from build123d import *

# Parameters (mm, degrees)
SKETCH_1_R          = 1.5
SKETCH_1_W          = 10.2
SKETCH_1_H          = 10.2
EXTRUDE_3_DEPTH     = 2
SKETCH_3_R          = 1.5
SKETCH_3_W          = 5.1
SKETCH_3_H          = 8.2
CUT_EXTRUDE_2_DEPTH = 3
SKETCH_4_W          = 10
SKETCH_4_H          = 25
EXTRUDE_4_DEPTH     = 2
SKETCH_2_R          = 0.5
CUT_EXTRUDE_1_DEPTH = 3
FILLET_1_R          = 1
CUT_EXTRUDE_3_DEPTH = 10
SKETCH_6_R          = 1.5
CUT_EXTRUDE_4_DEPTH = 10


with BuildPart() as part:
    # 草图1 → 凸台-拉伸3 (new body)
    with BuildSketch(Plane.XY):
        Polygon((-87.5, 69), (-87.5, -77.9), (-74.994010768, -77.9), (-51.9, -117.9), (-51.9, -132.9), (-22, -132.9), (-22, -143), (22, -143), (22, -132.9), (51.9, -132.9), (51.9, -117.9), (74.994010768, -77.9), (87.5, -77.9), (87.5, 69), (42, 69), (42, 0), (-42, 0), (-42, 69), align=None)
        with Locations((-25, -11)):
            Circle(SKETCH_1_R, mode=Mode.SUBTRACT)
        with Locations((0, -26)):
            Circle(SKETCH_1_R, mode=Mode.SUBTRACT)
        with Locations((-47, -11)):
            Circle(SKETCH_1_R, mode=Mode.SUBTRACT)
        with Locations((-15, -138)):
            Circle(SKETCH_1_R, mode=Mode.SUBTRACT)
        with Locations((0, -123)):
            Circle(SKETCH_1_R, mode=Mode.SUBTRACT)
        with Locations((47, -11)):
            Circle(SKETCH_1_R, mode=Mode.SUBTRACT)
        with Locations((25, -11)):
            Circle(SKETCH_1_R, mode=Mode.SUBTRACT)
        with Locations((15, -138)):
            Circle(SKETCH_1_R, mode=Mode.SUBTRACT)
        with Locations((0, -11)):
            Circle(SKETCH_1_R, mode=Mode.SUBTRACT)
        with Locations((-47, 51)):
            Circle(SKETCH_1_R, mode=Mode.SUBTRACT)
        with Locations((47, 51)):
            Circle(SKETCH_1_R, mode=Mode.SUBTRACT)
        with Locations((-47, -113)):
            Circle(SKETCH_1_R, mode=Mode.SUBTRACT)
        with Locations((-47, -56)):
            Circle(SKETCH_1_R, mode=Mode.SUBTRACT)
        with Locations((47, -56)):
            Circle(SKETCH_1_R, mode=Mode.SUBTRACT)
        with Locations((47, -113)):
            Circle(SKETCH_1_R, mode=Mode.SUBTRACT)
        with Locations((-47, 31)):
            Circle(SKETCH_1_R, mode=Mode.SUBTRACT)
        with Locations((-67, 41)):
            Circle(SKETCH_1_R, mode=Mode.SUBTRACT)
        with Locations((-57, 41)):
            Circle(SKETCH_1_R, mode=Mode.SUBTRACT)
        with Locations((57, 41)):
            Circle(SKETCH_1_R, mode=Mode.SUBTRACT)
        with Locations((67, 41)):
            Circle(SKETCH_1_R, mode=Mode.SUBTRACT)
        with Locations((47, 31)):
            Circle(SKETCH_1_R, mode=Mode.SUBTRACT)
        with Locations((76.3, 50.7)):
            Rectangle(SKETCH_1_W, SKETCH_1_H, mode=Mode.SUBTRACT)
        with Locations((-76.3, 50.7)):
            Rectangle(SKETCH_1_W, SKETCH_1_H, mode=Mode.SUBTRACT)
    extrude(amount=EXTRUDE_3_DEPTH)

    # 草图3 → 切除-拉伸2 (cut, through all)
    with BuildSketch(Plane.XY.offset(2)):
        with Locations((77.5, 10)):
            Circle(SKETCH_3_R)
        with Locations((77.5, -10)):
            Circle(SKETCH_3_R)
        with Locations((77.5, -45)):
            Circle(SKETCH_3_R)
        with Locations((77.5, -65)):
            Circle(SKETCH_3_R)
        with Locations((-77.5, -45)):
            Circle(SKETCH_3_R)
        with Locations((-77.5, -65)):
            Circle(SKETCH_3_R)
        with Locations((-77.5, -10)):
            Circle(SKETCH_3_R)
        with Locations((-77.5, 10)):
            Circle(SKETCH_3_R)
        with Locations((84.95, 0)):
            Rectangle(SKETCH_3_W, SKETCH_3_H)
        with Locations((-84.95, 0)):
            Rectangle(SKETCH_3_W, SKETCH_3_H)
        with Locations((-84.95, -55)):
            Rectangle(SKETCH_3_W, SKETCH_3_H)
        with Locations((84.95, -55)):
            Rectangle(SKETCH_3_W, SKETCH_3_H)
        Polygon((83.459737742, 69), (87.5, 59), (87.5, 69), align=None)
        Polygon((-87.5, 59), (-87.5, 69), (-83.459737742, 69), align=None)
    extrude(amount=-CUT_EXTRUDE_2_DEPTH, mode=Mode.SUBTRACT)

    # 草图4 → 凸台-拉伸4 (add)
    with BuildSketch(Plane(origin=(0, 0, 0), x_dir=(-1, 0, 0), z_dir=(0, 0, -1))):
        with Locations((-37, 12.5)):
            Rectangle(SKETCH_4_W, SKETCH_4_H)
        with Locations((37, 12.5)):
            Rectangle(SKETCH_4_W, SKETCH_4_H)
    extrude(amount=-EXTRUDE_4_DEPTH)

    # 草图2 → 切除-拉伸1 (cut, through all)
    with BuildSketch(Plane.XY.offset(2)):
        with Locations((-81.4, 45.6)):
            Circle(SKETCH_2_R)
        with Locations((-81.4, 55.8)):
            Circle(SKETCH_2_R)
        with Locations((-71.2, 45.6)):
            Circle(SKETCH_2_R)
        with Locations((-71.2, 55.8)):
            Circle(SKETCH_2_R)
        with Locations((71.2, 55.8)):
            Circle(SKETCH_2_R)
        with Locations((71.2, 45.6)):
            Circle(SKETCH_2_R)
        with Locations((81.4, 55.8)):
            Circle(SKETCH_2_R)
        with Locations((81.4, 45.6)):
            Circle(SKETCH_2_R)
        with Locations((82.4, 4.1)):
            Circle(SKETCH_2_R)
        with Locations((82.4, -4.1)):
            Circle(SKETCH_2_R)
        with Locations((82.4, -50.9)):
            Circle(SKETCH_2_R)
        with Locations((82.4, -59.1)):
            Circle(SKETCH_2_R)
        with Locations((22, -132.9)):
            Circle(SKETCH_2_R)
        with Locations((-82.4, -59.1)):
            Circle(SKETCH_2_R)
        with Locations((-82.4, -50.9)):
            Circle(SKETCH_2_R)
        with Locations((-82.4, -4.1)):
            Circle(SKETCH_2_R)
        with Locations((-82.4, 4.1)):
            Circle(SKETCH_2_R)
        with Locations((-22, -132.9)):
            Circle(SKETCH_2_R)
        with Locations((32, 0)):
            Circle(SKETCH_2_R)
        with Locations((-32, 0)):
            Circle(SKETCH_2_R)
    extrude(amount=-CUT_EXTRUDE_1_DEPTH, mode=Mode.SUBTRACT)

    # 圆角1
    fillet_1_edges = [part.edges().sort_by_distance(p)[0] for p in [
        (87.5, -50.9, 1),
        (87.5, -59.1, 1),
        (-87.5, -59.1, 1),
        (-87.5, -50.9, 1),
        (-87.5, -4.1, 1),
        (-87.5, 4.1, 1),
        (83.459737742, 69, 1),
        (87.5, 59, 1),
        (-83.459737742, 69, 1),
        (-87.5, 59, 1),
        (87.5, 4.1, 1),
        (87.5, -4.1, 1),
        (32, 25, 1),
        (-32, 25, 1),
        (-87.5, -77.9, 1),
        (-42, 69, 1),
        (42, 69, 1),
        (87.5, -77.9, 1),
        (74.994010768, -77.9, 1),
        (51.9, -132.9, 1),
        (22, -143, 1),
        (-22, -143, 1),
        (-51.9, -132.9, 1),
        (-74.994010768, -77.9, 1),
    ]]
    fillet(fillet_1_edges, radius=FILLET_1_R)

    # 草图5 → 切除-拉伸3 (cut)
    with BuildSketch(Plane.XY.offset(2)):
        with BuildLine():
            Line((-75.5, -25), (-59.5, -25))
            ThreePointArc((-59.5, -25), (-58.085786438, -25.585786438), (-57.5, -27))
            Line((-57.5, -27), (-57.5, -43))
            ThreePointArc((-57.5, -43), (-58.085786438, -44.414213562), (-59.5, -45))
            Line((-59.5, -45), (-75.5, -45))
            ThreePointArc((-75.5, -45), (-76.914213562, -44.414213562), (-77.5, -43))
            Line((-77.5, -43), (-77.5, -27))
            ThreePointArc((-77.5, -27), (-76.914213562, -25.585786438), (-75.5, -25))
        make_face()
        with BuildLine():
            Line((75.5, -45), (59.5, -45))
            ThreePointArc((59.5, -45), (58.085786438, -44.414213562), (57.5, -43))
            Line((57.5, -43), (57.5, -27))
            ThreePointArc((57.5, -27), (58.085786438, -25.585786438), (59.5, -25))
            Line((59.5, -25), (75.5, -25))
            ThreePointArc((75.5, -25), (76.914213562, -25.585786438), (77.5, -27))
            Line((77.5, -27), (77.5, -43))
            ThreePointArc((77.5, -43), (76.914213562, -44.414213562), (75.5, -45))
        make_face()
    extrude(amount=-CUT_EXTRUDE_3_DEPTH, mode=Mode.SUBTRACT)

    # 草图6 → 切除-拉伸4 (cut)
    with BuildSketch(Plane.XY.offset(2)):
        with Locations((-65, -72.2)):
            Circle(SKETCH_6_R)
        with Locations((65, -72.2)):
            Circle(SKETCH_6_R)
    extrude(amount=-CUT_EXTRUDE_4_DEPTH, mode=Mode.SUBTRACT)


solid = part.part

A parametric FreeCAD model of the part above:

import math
import FreeCAD as App
import Part
import Sketcher
from FreeCAD import Vector
Q = App.Units.Quantity


def edges_at(feature, points):
    """Names of the edges that pass closest to the given points."""
    edges = feature.Shape.Edges
    near = lambda p: min(range(len(edges)), key=lambda i: edges[i].distToShape(Part.Vertex(*p))[0])
    return sorted({f"Edge{near(p) + 1}" for p in points})

doc = App.newDocument("Part")
body = doc.addObject("PartDesign::Body", "Body")

# Sketch on XY plane
sketch1 = body.newObject("Sketcher::SketchObject", "Sketch")
sketch1.AttachmentSupport = (doc.getObject("XY_Plane"), [""])
sketch1.MapMode = "FlatFace"
sketch1.addGeometry(Part.LineSegment(Vector(-87.5, 69, 0), Vector(-87.5, -77.9, 0)), False)
sketch1.addGeometry(Part.LineSegment(Vector(-87.5, -77.9, 0), Vector(-75, -77.9, 0)), False)
sketch1.addGeometry(Part.LineSegment(Vector(-75, -77.9, 0), Vector(-51.9, -117.9, 0)), False)
sketch1.addGeometry(Part.LineSegment(Vector(-51.9, -117.9, 0), Vector(-51.9, -132.9, 0)), False)
sketch1.addGeometry(Part.LineSegment(Vector(-51.9, -132.9, 0), Vector(-22, -132.9, 0)), False)
sketch1.addGeometry(Part.LineSegment(Vector(-22, -132.9, 0), Vector(-22, -143, 0)), False)
sketch1.addGeometry(Part.LineSegment(Vector(-22, -143, 0), Vector(22, -143, 0)), False)
sketch1.addGeometry(Part.LineSegment(Vector(22, -143, 0), Vector(22, -132.9, 0)), False)
sketch1.addGeometry(Part.LineSegment(Vector(22, -132.9, 0), Vector(51.9, -132.9, 0)), False)
sketch1.addGeometry(Part.LineSegment(Vector(51.9, -132.9, 0), Vector(51.9, -117.9, 0)), False)
sketch1.addGeometry(Part.LineSegment(Vector(51.9, -117.9, 0), Vector(75, -77.9, 0)), False)
sketch1.addGeometry(Part.LineSegment(Vector(75, -77.9, 0), Vector(87.5, -77.9, 0)), False)
sketch1.addGeometry(Part.LineSegment(Vector(87.5, -77.9, 0), Vector(87.5, 69, 0)), False)
sketch1.addGeometry(Part.LineSegment(Vector(87.5, 69, 0), Vector(42, 69, 0)), False)
sketch1.addGeometry(Part.LineSegment(Vector(42, 69, 0), Vector(42, 0, 0)), False)
sketch1.addGeometry(Part.LineSegment(Vector(42, 0, 0), Vector(-42, 0, 0)), False)
sketch1.addGeometry(Part.LineSegment(Vector(-42, 0, 0), Vector(-42, 69, 0)), False)
sketch1.addGeometry(Part.LineSegment(Vector(-42, 69, 0), Vector(-87.5, 69, 0)), False)
sketch1.addGeometry(Part.Circle(Vector(-47, -113, 0), Vector(0, 0, 1), 1.5), False)
sketch1.addGeometry(Part.Circle(Vector(-15, -138, 0), Vector(0, 0, 1), 1.5), False)
sketch1.addGeometry(Part.Circle(Vector(-47, -56, 0), Vector(0, 0, 1), 1.5), False)
sketch1.addGeometry(Part.Circle(Vector(15, -138, 0), Vector(0, 0, 1), 1.5), False)
sketch1.addGeometry(Part.Circle(Vector(0, -123, 0), Vector(0, 0, 1), 1.5), False)
sketch1.addGeometry(Part.Circle(Vector(47, -113, 0), Vector(0, 0, 1), 1.5), False)
sketch1.addGeometry(Part.Circle(Vector(47, -56, 0), Vector(0, 0, 1), 1.5), False)
sketch1.addGeometry(Part.Circle(Vector(-47, -11, 0), Vector(0, 0, 1), 1.5), False)
sketch1.addGeometry(Part.Circle(Vector(-25, -11, 0), Vector(0, 0, 1), 1.5), False)
sketch1.addGeometry(Part.Circle(Vector(-47, 31, 0), Vector(0, 0, 1), 1.5), False)
sketch1.addGeometry(Part.Circle(Vector(-67, 41, 0), Vector(0, 0, 1), 1.5), False)
sketch1.addGeometry(Part.LineSegment(Vector(-71.2, 45.6, 0), Vector(-81.4, 45.6, 0)), False)
sketch1.addGeometry(Part.LineSegment(Vector(-81.4, 45.6, 0), Vector(-81.4, 55.8, 0)), False)
sketch1.addGeometry(Part.LineSegment(Vector(-81.4, 55.8, 0), Vector(-71.2, 55.8, 0)), False)
sketch1.addGeometry(Part.LineSegment(Vector(-71.2, 55.8, 0), Vector(-71.2, 45.6, 0)), False)
sketch1.addGeometry(Part.Circle(Vector(-57, 41, 0), Vector(0, 0, 1), 1.5), False)
sketch1.addGeometry(Part.Circle(Vector(-47, 51, 0), Vector(0, 0, 1), 1.5), False)
sketch1.addGeometry(Part.Circle(Vector(0, -26, 0), Vector(0, 0, 1), 1.5), False)
sketch1.addGeometry(Part.Circle(Vector(0, -11, 0), Vector(0, 0, 1), 1.5), False)
sketch1.addGeometry(Part.Circle(Vector(25, -11, 0), Vector(0, 0, 1), 1.5), False)
sketch1.addGeometry(Part.Circle(Vector(47, -11, 0), Vector(0, 0, 1), 1.5), False)
sketch1.addGeometry(Part.Circle(Vector(47, 31, 0), Vector(0, 0, 1), 1.5), False)
sketch1.addGeometry(Part.Circle(Vector(57, 41, 0), Vector(0, 0, 1), 1.5), False)
sketch1.addGeometry(Part.Circle(Vector(47, 51, 0), Vector(0, 0, 1), 1.5), False)
sketch1.addGeometry(Part.Circle(Vector(67, 41, 0), Vector(0, 0, 1), 1.5), False)
sketch1.addGeometry(Part.LineSegment(Vector(81.4, 45.6, 0), Vector(71.2, 45.6, 0)), False)
sketch1.addGeometry(Part.LineSegment(Vector(71.2, 45.6, 0), Vector(71.2, 55.8, 0)), False)
sketch1.addGeometry(Part.LineSegment(Vector(71.2, 55.8, 0), Vector(81.4, 55.8, 0)), False)
sketch1.addGeometry(Part.LineSegment(Vector(81.4, 55.8, 0), Vector(81.4, 45.6, 0)), False)
sketch1.addConstraint(Sketcher.Constraint("Coincident", 0, 2, 1, 1))
sketch1.addConstraint(Sketcher.Constraint("Coincident", 1, 2, 2, 1))
sketch1.addConstraint(Sketcher.Constraint("Coincident", 2, 2, 3, 1))
sketch1.addConstraint(Sketcher.Constraint("Coincident", 3, 2, 4, 1))
sketch1.addConstraint(Sketcher.Constraint("Coincident", 4, 2, 5, 1))
sketch1.addConstraint(Sketcher.Constraint("Coincident", 5, 2, 6, 1))
sketch1.addConstraint(Sketcher.Constraint("Coincident", 6, 2, 7, 1))
sketch1.addConstraint(Sketcher.Constraint("Coincident", 7, 2, 8, 1))
sketch1.addConstraint(Sketcher.Constraint("Coincident", 8, 2, 9, 1))
sketch1.addConstraint(Sketcher.Constraint("Coincident", 9, 2, 10, 1))
sketch1.addConstraint(Sketcher.Constraint("Coincident", 10, 2, 11, 1))
sketch1.addConstraint(Sketcher.Constraint("Coincident", 11, 2, 12, 1))
sketch1.addConstraint(Sketcher.Constraint("Coincident", 12, 2, 13, 1))
sketch1.addConstraint(Sketcher.Constraint("Coincident", 13, 2, 14, 1))
sketch1.addConstraint(Sketcher.Constraint("Coincident", 14, 2, 15, 1))
sketch1.addConstraint(Sketcher.Constraint("Coincident", 15, 2, 16, 1))
sketch1.addConstraint(Sketcher.Constraint("Coincident", 16, 2, 17, 1))
sketch1.addConstraint(Sketcher.Constraint("Coincident", 17, 2, 0, 1))
sketch1.addConstraint(Sketcher.Constraint("Coincident", 29, 2, 30, 1))
sketch1.addConstraint(Sketcher.Constraint("Coincident", 30, 2, 31, 1))
sketch1.addConstraint(Sketcher.Constraint("Coincident", 31, 2, 32, 1))
sketch1.addConstraint(Sketcher.Constraint("Coincident", 32, 2, 29, 1))
sketch1.addConstraint(Sketcher.Constraint("Coincident", 43, 2, 44, 1))
sketch1.addConstraint(Sketcher.Constraint("Coincident", 44, 2, 45, 1))
sketch1.addConstraint(Sketcher.Constraint("Coincident", 45, 2, 46, 1))
sketch1.addConstraint(Sketcher.Constraint("Coincident", 46, 2, 43, 1))
sketch1.addConstraint(Sketcher.Constraint("Vertical", 0))
sketch1.addConstraint(Sketcher.Constraint("Horizontal", 1))
sketch1.addConstraint(Sketcher.Constraint("Vertical", 3))
sketch1.addConstraint(Sketcher.Constraint("Horizontal", 4))
sketch1.addConstraint(Sketcher.Constraint("Vertical", 5))
sketch1.addConstraint(Sketcher.Constraint("Horizontal", 6))
sketch1.addConstraint(Sketcher.Constraint("Vertical", 7))
sketch1.addConstraint(Sketcher.Constraint("Horizontal", 8))
sketch1.addConstraint(Sketcher.Constraint("Vertical", 9))
sketch1.addConstraint(Sketcher.Constraint("Horizontal", 11))
sketch1.addConstraint(Sketcher.Constraint("Vertical", 12))
sketch1.addConstraint(Sketcher.Constraint("Horizontal", 13))
sketch1.addConstraint(Sketcher.Constraint("Vertical", 14))
sketch1.addConstraint(Sketcher.Constraint("Horizontal", 15))
sketch1.addConstraint(Sketcher.Constraint("Vertical", 16))
sketch1.addConstraint(Sketcher.Constraint("Horizontal", 17))
sketch1.addConstraint(Sketcher.Constraint("Horizontal", 29))
sketch1.addConstraint(Sketcher.Constraint("Vertical", 30))
sketch1.addConstraint(Sketcher.Constraint("Horizontal", 31))
sketch1.addConstraint(Sketcher.Constraint("Vertical", 32))
sketch1.addConstraint(Sketcher.Constraint("Horizontal", 43))
sketch1.addConstraint(Sketcher.Constraint("Vertical", 44))
sketch1.addConstraint(Sketcher.Constraint("Horizontal", 45))
sketch1.addConstraint(Sketcher.Constraint("Vertical", 46))
sketch1.addConstraint(Sketcher.Constraint("Equal", 18, 19))
sketch1.addConstraint(Sketcher.Constraint("Equal", 19, 20))
sketch1.addConstraint(Sketcher.Constraint("Equal", 20, 21))
sketch1.addConstraint(Sketcher.Constraint("Equal", 21, 22))
sketch1.addConstraint(Sketcher.Constraint("Equal", 22, 23))
sketch1.addConstraint(Sketcher.Constraint("Equal", 23, 24))
sketch1.addConstraint(Sketcher.Constraint("Equal", 24, 25))
sketch1.addConstraint(Sketcher.Constraint("Equal", 25, 26))
sketch1.addConstraint(Sketcher.Constraint("Equal", 26, 27))
sketch1.addConstraint(Sketcher.Constraint("Equal", 27, 28))
sketch1.addConstraint(Sketcher.Constraint("Equal", 28, 33))
sketch1.addConstraint(Sketcher.Constraint("Equal", 33, 34))
sketch1.addConstraint(Sketcher.Constraint("Equal", 34, 35))
sketch1.addConstraint(Sketcher.Constraint("Equal", 35, 36))
sketch1.addConstraint(Sketcher.Constraint("Equal", 36, 37))
sketch1.addConstraint(Sketcher.Constraint("Equal", 37, 38))
sketch1.addConstraint(Sketcher.Constraint("Equal", 38, 39))
sketch1.addConstraint(Sketcher.Constraint("Equal", 39, 40))
sketch1.addConstraint(Sketcher.Constraint("Equal", 40, 41))
sketch1.addConstraint(Sketcher.Constraint("Equal", 41, 42))
sketch1.addConstraint(Sketcher.Constraint("Symmetric", 14, 2, 15, 2, -1, 1))
sketch1.addConstraint(Sketcher.Constraint("Symmetric", 19, 3, 21, 3, -2))
sketch1.addConstraint(Sketcher.Constraint("Symmetric", 18, 3, 23, 3, -2))
sketch1.addConstraint(Sketcher.Constraint("Symmetric", 20, 3, 24, 3, -2))
sketch1.addConstraint(Sketcher.Constraint("Symmetric", 26, 3, 37, 3, -2))
sketch1.addConstraint(Sketcher.Constraint("Symmetric", 25, 3, 38, 3, -2))
sketch1.addConstraint(Sketcher.Constraint("Symmetric", 27, 3, 39, 3, -2))
sketch1.addConstraint(Sketcher.Constraint("Symmetric", 33, 3, 40, 3, -2))
sketch1.addConstraint(Sketcher.Constraint("Symmetric", 34, 3, 41, 3, -2))
sketch1.addConstraint(Sketcher.Constraint("Symmetric", 28, 3, 42, 3, -2))
sketch1.addConstraint(Sketcher.Constraint("Symmetric", 4, 2, 7, 2, -2))
sketch1.addConstraint(Sketcher.Constraint("Symmetric", 2, 2, 9, 2, -2))
sketch1.addConstraint(Sketcher.Constraint("Symmetric", 1, 2, 10, 2, -2))
sketch1.addConstraint(Sketcher.Constraint("Symmetric", 12, 2, 17, 2, -2))
sketch1.addConstraint(Sketcher.Constraint("Symmetric", 32, 2, 43, 2, -2))
sketch1.addConstraint(Sketcher.Constraint("Symmetric", 30, 2, 45, 2, -2))
sketch1.addConstraint(Sketcher.Constraint("PointOnObject", 22, 3, -2))
sketch1.addConstraint(Sketcher.Constraint("PointOnObject", 35, 3, -2))
sketch1.addConstraint(Sketcher.Constraint("PointOnObject", 36, 3, -2))
sketch1.addConstraint(Sketcher.Constraint("Horizontal", 25, 3, 26, 3))
sketch1.addConstraint(Sketcher.Constraint("Horizontal", 28, 3, 33, 3))
sketch1.addConstraint(Sketcher.Constraint("Horizontal", 26, 3, 36, 3))
sketch1.addConstraint(Sketcher.Constraint("Vertical", 18, 3, 20, 3))
sketch1.addConstraint(Sketcher.Constraint("Vertical", 20, 3, 25, 3))
sketch1.addConstraint(Sketcher.Constraint("Vertical", 25, 3, 27, 3))
sketch1.addConstraint(Sketcher.Constraint("Vertical", 27, 3, 34, 3))
sketch1.addConstraint(Sketcher.Constraint("Equal", 45, 30))
sketch1.addConstraint(Sketcher.Constraint("Diameter", 18, Q("3 mm")))
sketch1.addConstraint(Sketcher.Constraint("DistanceX", 6, 1, 6, 2, Q("44 mm")))
sketch1.addConstraint(Sketcher.Constraint("DistanceX", 15, 2, 15, 1, Q("84 mm")))
sketch1.addConstraint(Sketcher.Constraint("DistanceY", 3, 2, 3, 1, Q("15 mm")))
sketch1.addConstraint(Sketcher.Constraint("DistanceY", 14, 2, 14, 1, Q("69 mm")))
sketch1.addConstraint(Sketcher.Constraint("Angle", 2, Q("-60 deg")))
sketch1.addConstraint(Sketcher.Constraint("DistanceX", 4, 1, 4, 2, Q("29.9 mm")))
sketch1.addConstraint(Sketcher.Constraint("DistanceX", 13, 2, 13, 1, Q("45.5 mm")))
sketch1.addConstraint(Sketcher.Constraint("DistanceX", 29, 2, 29, 1, Q("10.2 mm")))
sketch1.addConstraint(Sketcher.Constraint("DistanceY", 0, 2, 0, 1, Q("146.9 mm")))
sketch1.addConstraint(Sketcher.Constraint("DistanceY", 5, 2, 5, 1, Q("10.1 mm")))
sketch1.addConstraint(Sketcher.Constraint("DistanceX", 18, 3, -1, 1, Q("47 mm")))
sketch1.addConstraint(Sketcher.Constraint("DistanceY", 18, 3, -1, 1, Q("113 mm")))
sketch1.addConstraint(Sketcher.Constraint("DistanceX", 19, 3, -1, 1, Q("15 mm")))
sketch1.addConstraint(Sketcher.Constraint("DistanceY", 19, 3, -1, 1, Q("138 mm")))
sketch1.addConstraint(Sketcher.Constraint("DistanceY", 20, 3, -1, 1, Q("56 mm")))
sketch1.addConstraint(Sketcher.Constraint("DistanceY", 22, 3, -1, 1, Q("123 mm")))
sketch1.addConstraint(Sketcher.Constraint("DistanceY", 25, 3, -1, 1, Q("11 mm")))
sketch1.addConstraint(Sketcher.Constraint("DistanceX", 26, 3, -1, 1, Q("25 mm")))
sketch1.addConstraint(Sketcher.Constraint("DistanceY", -1, 1, 27, 3, Q("31 mm")))
sketch1.addConstraint(Sketcher.Constraint("DistanceX", 28, 3, -1, 1, Q("67 mm")))
sketch1.addConstraint(Sketcher.Constraint("DistanceY", -1, 1, 28, 3, Q("41 mm")))
sketch1.addConstraint(Sketcher.Constraint("DistanceX", 33, 3, -1, 1, Q("57 mm")))
sketch1.addConstraint(Sketcher.Constraint("DistanceY", -1, 1, 34, 3, Q("51 mm")))
sketch1.addConstraint(Sketcher.Constraint("DistanceY", 35, 3, -1, 1, Q("26 mm")))
sketch1.addConstraint(Sketcher.Constraint("DistanceY", 5, 2, -1, 1, Q("143 mm")))
sketch1.addConstraint(Sketcher.Constraint("DistanceX", 29, 2, -1, 1, Q("81.4 mm")))
sketch1.addConstraint(Sketcher.Constraint("DistanceY", -1, 1, 29, 2, Q("45.6 mm")))
pad1 = body.newObject("PartDesign::Pad", "Pad")
pad1.Profile = sketch1
pad1.Length = 2

# Sketch on XY plane
sketch2 = body.newObject("Sketcher::SketchObject", "Sketch001")
sketch2.AttachmentSupport = (doc.getObject("XY_Plane"), [""])
sketch2.MapMode = "FlatFace"
sketch2.AttachmentOffset = App.Placement(Vector(0, 0, 2), App.Rotation())
sketch2.addGeometry(Part.Circle(Vector(77.5, 10, 0), Vector(0, 0, 1), 1.5), False)
sketch2.addGeometry(Part.Circle(Vector(77.5, -10, 0), Vector(0, 0, 1), 1.5), False)
sketch2.addGeometry(Part.Circle(Vector(77.5, -45, 0), Vector(0, 0, 1), 1.5), False)
sketch2.addGeometry(Part.Circle(Vector(77.5, -65, 0), Vector(0, 0, 1), 1.5), False)
sketch2.addGeometry(Part.Circle(Vector(-77.5, -45, 0), Vector(0, 0, 1), 1.5), False)
sketch2.addGeometry(Part.Circle(Vector(-77.5, -65, 0), Vector(0, 0, 1), 1.5), False)
sketch2.addGeometry(Part.Circle(Vector(-77.5, -10, 0), Vector(0, 0, 1), 1.5), False)
sketch2.addGeometry(Part.Circle(Vector(-77.5, 10, 0), Vector(0, 0, 1), 1.5), False)
sketch2.addGeometry(Part.LineSegment(Vector(82.4, 4.1, 0), Vector(82.4, -4.1, 0)), False)
sketch2.addGeometry(Part.LineSegment(Vector(82.4, -4.1, 0), Vector(87.5, -4.1, 0)), False)
sketch2.addGeometry(Part.LineSegment(Vector(87.5, -4.1, 0), Vector(87.5, 4.1, 0)), False)
sketch2.addGeometry(Part.LineSegment(Vector(87.5, 4.1, 0), Vector(82.4, 4.1, 0)), False)
sketch2.addGeometry(Part.LineSegment(Vector(-87.5, 4.1, 0), Vector(-87.5, -4.1, 0)), False)
sketch2.addGeometry(Part.LineSegment(Vector(-87.5, -4.1, 0), Vector(-82.4, -4.1, 0)), False)
sketch2.addGeometry(Part.LineSegment(Vector(-82.4, -4.1, 0), Vector(-82.4, 4.1, 0)), False)
sketch2.addGeometry(Part.LineSegment(Vector(-82.4, 4.1, 0), Vector(-87.5, 4.1, 0)), False)
sketch2.addGeometry(Part.LineSegment(Vector(-87.5, -50.9, 0), Vector(-87.5, -59.1, 0)), False)
sketch2.addGeometry(Part.LineSegment(Vector(-87.5, -59.1, 0), Vector(-82.4, -59.1, 0)), False)
sketch2.addGeometry(Part.LineSegment(Vector(-82.4, -59.1, 0), Vector(-82.4, -50.9, 0)), False)
sketch2.addGeometry(Part.LineSegment(Vector(-82.4, -50.9, 0), Vector(-87.5, -50.9, 0)), False)
sketch2.addGeometry(Part.LineSegment(Vector(82.4, -50.9, 0), Vector(82.4, -59.1, 0)), False)
sketch2.addGeometry(Part.LineSegment(Vector(82.4, -59.1, 0), Vector(87.5, -59.1, 0)), False)
sketch2.addGeometry(Part.LineSegment(Vector(87.5, -59.1, 0), Vector(87.5, -50.9, 0)), False)
sketch2.addGeometry(Part.LineSegment(Vector(87.5, -50.9, 0), Vector(82.4, -50.9, 0)), False)
sketch2.addGeometry(Part.LineSegment(Vector(83.5, 69, 0), Vector(87.5, 59, 0)), False)
sketch2.addGeometry(Part.LineSegment(Vector(87.5, 59, 0), Vector(87.5, 69, 0)), False)
sketch2.addGeometry(Part.LineSegment(Vector(87.5, 69, 0), Vector(83.5, 69, 0)), False)
sketch2.addGeometry(Part.LineSegment(Vector(-87.5, 69, 0), Vector(-87.5, 59, 0)), False)
sketch2.addGeometry(Part.LineSegment(Vector(-87.5, 59, 0), Vector(-83.5, 69, 0)), False)
sketch2.addGeometry(Part.LineSegment(Vector(-83.5, 69, 0), Vector(-87.5, 69, 0)), False)
sketch2.addConstraint(Sketcher.Constraint("Coincident", 8, 2, 9, 1))
sketch2.addConstraint(Sketcher.Constraint("Coincident", 9, 2, 10, 1))
sketch2.addConstraint(Sketcher.Constraint("Coincident", 10, 2, 11, 1))
sketch2.addConstraint(Sketcher.Constraint("Coincident", 11, 2, 8, 1))
sketch2.addConstraint(Sketcher.Constraint("Coincident", 12, 2, 13, 1))
sketch2.addConstraint(Sketcher.Constraint("Coincident", 13, 2, 14, 1))
sketch2.addConstraint(Sketcher.Constraint("Coincident", 14, 2, 15, 1))
sketch2.addConstraint(Sketcher.Constraint("Coincident", 15, 2, 12, 1))
sketch2.addConstraint(Sketcher.Constraint("Coincident", 16, 2, 17, 1))
sketch2.addConstraint(Sketcher.Constraint("Coincident", 17, 2, 18, 1))
sketch2.addConstraint(Sketcher.Constraint("Coincident", 18, 2, 19, 1))
sketch2.addConstraint(Sketcher.Constraint("Coincident", 19, 2, 16, 1))
sketch2.addConstraint(Sketcher.Constraint("Coincident", 20, 2, 21, 1))
sketch2.addConstraint(Sketcher.Constraint("Coincident", 21, 2, 22, 1))
sketch2.addConstraint(Sketcher.Constraint("Coincident", 22, 2, 23, 1))
sketch2.addConstraint(Sketcher.Constraint("Coincident", 23, 2, 20, 1))
sketch2.addConstraint(Sketcher.Constraint("Coincident", 24, 2, 25, 1))
sketch2.addConstraint(Sketcher.Constraint("Coincident", 25, 2, 26, 1))
sketch2.addConstraint(Sketcher.Constraint("Coincident", 26, 2, 24, 1))
sketch2.addConstraint(Sketcher.Constraint("Coincident", 27, 2, 28, 1))
sketch2.addConstraint(Sketcher.Constraint("Coincident", 28, 2, 29, 1))
sketch2.addConstraint(Sketcher.Constraint("Coincident", 29, 2, 27, 1))
sketch2.addConstraint(Sketcher.Constraint("Vertical", 8))
sketch2.addConstraint(Sketcher.Constraint("Horizontal", 9))
sketch2.addConstraint(Sketcher.Constraint("Vertical", 10))
sketch2.addConstraint(Sketcher.Constraint("Horizontal", 11))
sketch2.addConstraint(Sketcher.Constraint("Vertical", 12))
sketch2.addConstraint(Sketcher.Constraint("Horizontal", 13))
sketch2.addConstraint(Sketcher.Constraint("Vertical", 14))
sketch2.addConstraint(Sketcher.Constraint("Horizontal", 15))
sketch2.addConstraint(Sketcher.Constraint("Vertical", 16))
sketch2.addConstraint(Sketcher.Constraint("Horizontal", 17))
sketch2.addConstraint(Sketcher.Constraint("Vertical", 18))
sketch2.addConstraint(Sketcher.Constraint("Horizontal", 19))
sketch2.addConstraint(Sketcher.Constraint("Vertical", 20))
sketch2.addConstraint(Sketcher.Constraint("Horizontal", 21))
sketch2.addConstraint(Sketcher.Constraint("Vertical", 22))
sketch2.addConstraint(Sketcher.Constraint("Horizontal", 23))
sketch2.addConstraint(Sketcher.Constraint("Vertical", 25))
sketch2.addConstraint(Sketcher.Constraint("Horizontal", 26))
sketch2.addConstraint(Sketcher.Constraint("Vertical", 27))
sketch2.addConstraint(Sketcher.Constraint("Horizontal", 29))
sketch2.addConstraint(Sketcher.Constraint("Equal", 0, 1))
sketch2.addConstraint(Sketcher.Constraint("Equal", 1, 2))
sketch2.addConstraint(Sketcher.Constraint("Equal", 2, 3))
sketch2.addConstraint(Sketcher.Constraint("Equal", 3, 4))
sketch2.addConstraint(Sketcher.Constraint("Equal", 4, 5))
sketch2.addConstraint(Sketcher.Constraint("Equal", 5, 6))
sketch2.addConstraint(Sketcher.Constraint("Equal", 6, 7))
sketch2.addConstraint(Sketcher.Constraint("Symmetric", 0, 3, 6, 3, -1, 1))
sketch2.addConstraint(Sketcher.Constraint("Symmetric", 1, 3, 7, 3, -1, 1))
sketch2.addConstraint(Sketcher.Constraint("Symmetric", 10, 2, 12, 2, -1, 1))
sketch2.addConstraint(Sketcher.Constraint("Symmetric", 8, 2, 14, 2, -1, 1))
sketch2.addConstraint(Sketcher.Constraint("Symmetric", 2, 3, 4, 3, -2))
sketch2.addConstraint(Sketcher.Constraint("Symmetric", 3, 3, 5, 3, -2))
sketch2.addConstraint(Sketcher.Constraint("Symmetric", 1, 3, 6, 3, -2))
sketch2.addConstraint(Sketcher.Constraint("Symmetric", 17, 2, 20, 2, -2))
sketch2.addConstraint(Sketcher.Constraint("Symmetric", 19, 2, 22, 2, -2))
sketch2.addConstraint(Sketcher.Constraint("Symmetric", 24, 2, 27, 2, -2))
sketch2.addConstraint(Sketcher.Constraint("Symmetric", 26, 2, 28, 2, -2))
sketch2.addConstraint(Sketcher.Constraint("Horizontal", 9, 2, 12, 2))
sketch2.addConstraint(Sketcher.Constraint("Vertical", 1, 3, 2, 3))
sketch2.addConstraint(Sketcher.Constraint("Vertical", 2, 3, 3, 3))
sketch2.addConstraint(Sketcher.Constraint("Vertical", 15, 2, 16, 2))
sketch2.addConstraint(Sketcher.Constraint("Vertical", 14, 2, 17, 2))
sketch2.addConstraint(Sketcher.Constraint("Vertical", 22, 2, 24, 2))
sketch2.addConstraint(Sketcher.Constraint("Equal", 14, 16))
sketch2.addConstraint(Sketcher.Constraint("Diameter", 0, Q("3 mm")))
sketch2.addConstraint(Sketcher.Constraint("DistanceY", 25, 1, 25, 2, Q("10 mm")))
sketch2.addConstraint(Sketcher.Constraint("Angle", 24, Q("-68 deg")))
sketch2.addConstraint(Sketcher.Constraint("DistanceX", 9, 1, 9, 2, Q("5.1 mm")))
sketch2.addConstraint(Sketcher.Constraint("DistanceY", 8, 2, 8, 1, Q("8.2 mm")))
sketch2.addConstraint(Sketcher.Constraint("DistanceY", -1, 1, 0, 3, Q("10 mm")))
sketch2.addConstraint(Sketcher.Constraint("DistanceY", 2, 3, -1, 1, Q("45 mm")))
sketch2.addConstraint(Sketcher.Constraint("DistanceY", 3, 3, -1, 1, Q("65 mm")))
sketch2.addConstraint(Sketcher.Constraint("DistanceY", -1, 1, 24, 2, Q("59 mm")))
sketch2.addConstraint(Sketcher.Constraint("DistanceX", 4, 3, 2, 3, Q("155 mm")))
sketch2.addConstraint(Sketcher.Constraint("DistanceX", 1, 3, 9, 2, Q("10 mm")))
sketch2.addConstraint(Sketcher.Constraint("DistanceY", 16, 2, 12, 2, Q("55 mm")))
pocket1 = body.newObject("PartDesign::Pocket", "Pocket")
pocket1.Profile = sketch2
pocket1.Type = "ThroughAll"

# Sketch on XY plane
sketch3 = body.newObject("Sketcher::SketchObject", "Sketch002")
sketch3.AttachmentSupport = (doc.getObject("XY_Plane"), [""])
sketch3.MapMode = "FlatFace"
sketch3.addGeometry(Part.LineSegment(Vector(42, 25, 0), Vector(42, 0, 0)), False)
sketch3.addGeometry(Part.LineSegment(Vector(42, 0, 0), Vector(32, 0, 0)), False)
sketch3.addGeometry(Part.LineSegment(Vector(32, 0, 0), Vector(32, 25, 0)), False)
sketch3.addGeometry(Part.LineSegment(Vector(32, 25, 0), Vector(42, 25, 0)), False)
sketch3.addGeometry(Part.LineSegment(Vector(-32, 25, 0), Vector(-32, 0, 0)), False)
sketch3.addGeometry(Part.LineSegment(Vector(-32, 0, 0), Vector(-42, 0, 0)), False)
sketch3.addGeometry(Part.LineSegment(Vector(-42, 0, 0), Vector(-42, 25, 0)), False)
sketch3.addGeometry(Part.LineSegment(Vector(-42, 25, 0), Vector(-32, 25, 0)), False)
sketch3.addConstraint(Sketcher.Constraint("Coincident", 0, 2, 1, 1))
sketch3.addConstraint(Sketcher.Constraint("Coincident", 1, 2, 2, 1))
sketch3.addConstraint(Sketcher.Constraint("Coincident", 2, 2, 3, 1))
sketch3.addConstraint(Sketcher.Constraint("Coincident", 3, 2, 0, 1))
sketch3.addConstraint(Sketcher.Constraint("Coincident", 4, 2, 5, 1))
sketch3.addConstraint(Sketcher.Constraint("Coincident", 5, 2, 6, 1))
sketch3.addConstraint(Sketcher.Constraint("Coincident", 6, 2, 7, 1))
sketch3.addConstraint(Sketcher.Constraint("Coincident", 7, 2, 4, 1))
sketch3.addConstraint(Sketcher.Constraint("Vertical", 0))
sketch3.addConstraint(Sketcher.Constraint("Horizontal", 1))
sketch3.addConstraint(Sketcher.Constraint("Vertical", 2))
sketch3.addConstraint(Sketcher.Constraint("Horizontal", 3))
sketch3.addConstraint(Sketcher.Constraint("Vertical", 4))
sketch3.addConstraint(Sketcher.Constraint("Horizontal", 5))
sketch3.addConstraint(Sketcher.Constraint("Vertical", 6))
sketch3.addConstraint(Sketcher.Constraint("Horizontal", 7))
sketch3.addConstraint(Sketcher.Constraint("Symmetric", 1, 2, 4, 2, -1, 1))
sketch3.addConstraint(Sketcher.Constraint("Symmetric", 0, 2, 5, 2, -2))
sketch3.addConstraint(Sketcher.Constraint("Horizontal", 3, 2, 6, 2))
sketch3.addConstraint(Sketcher.Constraint("DistanceX", 1, 2, 1, 1, Q("10 mm")))
sketch3.addConstraint(Sketcher.Constraint("DistanceY", 0, 2, 0, 1, Q("25 mm")))
sketch3.addConstraint(Sketcher.Constraint("DistanceX", -1, 1, 0, 2, Q("42 mm")))
pad2 = body.newObject("PartDesign::Pad", "Pad001")
pad2.Profile = sketch3
pad2.Length = 2

# Sketch on XY plane
sketch4 = body.newObject("Sketcher::SketchObject", "Sketch003")
sketch4.AttachmentSupport = (doc.getObject("XY_Plane"), [""])
sketch4.MapMode = "FlatFace"
sketch4.AttachmentOffset = App.Placement(Vector(0, 0, 2), App.Rotation())
sketch4.addGeometry(Part.Circle(Vector(-81.4, 45.6, 0), Vector(0, 0, 1), 0.5), False)
sketch4.addGeometry(Part.Circle(Vector(-81.4, 55.8, 0), Vector(0, 0, 1), 0.5), False)
sketch4.addGeometry(Part.Circle(Vector(-71.2, 45.6, 0), Vector(0, 0, 1), 0.5), False)
sketch4.addGeometry(Part.Circle(Vector(-71.2, 55.8, 0), Vector(0, 0, 1), 0.5), False)
sketch4.addGeometry(Part.Circle(Vector(71.2, 55.8, 0), Vector(0, 0, 1), 0.5), False)
sketch4.addGeometry(Part.Circle(Vector(71.2, 45.6, 0), Vector(0, 0, 1), 0.5), False)
sketch4.addGeometry(Part.Circle(Vector(81.4, 55.8, 0), Vector(0, 0, 1), 0.5), False)
sketch4.addGeometry(Part.Circle(Vector(81.4, 45.6, 0), Vector(0, 0, 1), 0.5), False)
sketch4.addGeometry(Part.Circle(Vector(82.4, 4.1, 0), Vector(0, 0, 1), 0.5), False)
sketch4.addGeometry(Part.Circle(Vector(82.4, -4.1, 0), Vector(0, 0, 1), 0.5), False)
sketch4.addGeometry(Part.Circle(Vector(82.4, -50.9, 0), Vector(0, 0, 1), 0.5), False)
sketch4.addGeometry(Part.Circle(Vector(82.4, -59.1, 0), Vector(0, 0, 1), 0.5), False)
sketch4.addGeometry(Part.Circle(Vector(22, -132.9, 0), Vector(0, 0, 1), 0.5), False)
sketch4.addGeometry(Part.Circle(Vector(-82.4, -59.1, 0), Vector(0, 0, 1), 0.5), False)
sketch4.addGeometry(Part.Circle(Vector(-82.4, -50.9, 0), Vector(0, 0, 1), 0.5), False)
sketch4.addGeometry(Part.Circle(Vector(-82.4, -4.1, 0), Vector(0, 0, 1), 0.5), False)
sketch4.addGeometry(Part.Circle(Vector(-82.4, 4.1, 0), Vector(0, 0, 1), 0.5), False)
sketch4.addGeometry(Part.Circle(Vector(-22, -132.9, 0), Vector(0, 0, 1), 0.5), False)
sketch4.addGeometry(Part.Circle(Vector(32, 0, 0), Vector(0, 0, 1), 0.5), False)
sketch4.addGeometry(Part.Circle(Vector(-32, 0, 0), Vector(0, 0, 1), 0.5), False)
sketch4.addConstraint(Sketcher.Constraint("Equal", 0, 1))
sketch4.addConstraint(Sketcher.Constraint("Equal", 1, 2))
sketch4.addConstraint(Sketcher.Constraint("Equal", 2, 3))
sketch4.addConstraint(Sketcher.Constraint("Equal", 3, 4))
sketch4.addConstraint(Sketcher.Constraint("Equal", 4, 5))
sketch4.addConstraint(Sketcher.Constraint("Equal", 5, 6))
sketch4.addConstraint(Sketcher.Constraint("Equal", 6, 7))
sketch4.addConstraint(Sketcher.Constraint("Equal", 7, 8))
sketch4.addConstraint(Sketcher.Constraint("Equal", 8, 9))
sketch4.addConstraint(Sketcher.Constraint("Equal", 9, 10))
sketch4.addConstraint(Sketcher.Constraint("Equal", 10, 11))
sketch4.addConstraint(Sketcher.Constraint("Equal", 11, 12))
sketch4.addConstraint(Sketcher.Constraint("Equal", 12, 13))
sketch4.addConstraint(Sketcher.Constraint("Equal", 13, 14))
sketch4.addConstraint(Sketcher.Constraint("Equal", 14, 15))
sketch4.addConstraint(Sketcher.Constraint("Equal", 15, 16))
sketch4.addConstraint(Sketcher.Constraint("Equal", 16, 17))
sketch4.addConstraint(Sketcher.Constraint("Equal", 17, 18))
sketch4.addConstraint(Sketcher.Constraint("Equal", 18, 19))
sketch4.addConstraint(Sketcher.Constraint("Symmetric", 8, 3, 15, 3, -1, 1))
sketch4.addConstraint(Sketcher.Constraint("Symmetric", 9, 3, 16, 3, -1, 1))
sketch4.addConstraint(Sketcher.Constraint("Symmetric", 18, 3, 19, 3, -1, 1))
sketch4.addConstraint(Sketcher.Constraint("Symmetric", 3, 3, 4, 3, -2))
sketch4.addConstraint(Sketcher.Constraint("Symmetric", 2, 3, 5, 3, -2))
sketch4.addConstraint(Sketcher.Constraint("Symmetric", 1, 3, 6, 3, -2))
sketch4.addConstraint(Sketcher.Constraint("Symmetric", 0, 3, 7, 3, -2))
sketch4.addConstraint(Sketcher.Constraint("Symmetric", 11, 3, 13, 3, -2))
sketch4.addConstraint(Sketcher.Constraint("Symmetric", 10, 3, 14, 3, -2))
sketch4.addConstraint(Sketcher.Constraint("Symmetric", 9, 3, 15, 3, -2))
sketch4.addConstraint(Sketcher.Constraint("Symmetric", 12, 3, 17, 3, -2))
sketch4.addConstraint(Sketcher.Constraint("PointOnObject", 18, 3, -1))
sketch4.addConstraint(Sketcher.Constraint("Horizontal", 0, 3, 2, 3))
sketch4.addConstraint(Sketcher.Constraint("Horizontal", 1, 3, 3, 3))
sketch4.addConstraint(Sketcher.Constraint("Vertical", 0, 3, 1, 3))
sketch4.addConstraint(Sketcher.Constraint("Vertical", 2, 3, 3, 3))
sketch4.addConstraint(Sketcher.Constraint("Vertical", 9, 3, 10, 3))
sketch4.addConstraint(Sketcher.Constraint("Vertical", 10, 3, 11, 3))
sketch4.addConstraint(Sketcher.Constraint("Diameter", 0, Q("1 mm")))
sketch4.addConstraint(Sketcher.Constraint("DistanceX", -1, 1, 12, 3, Q("22 mm")))
sketch4.addConstraint(Sketcher.Constraint("DistanceX", -1, 1, 18, 3, Q("32 mm")))
sketch4.addConstraint(Sketcher.Constraint("DistanceX", 7, 3, 8, 3, Q("1 mm")))
sketch4.addConstraint(Sketcher.Constraint("DistanceY", 10, 3, 8, 3, Q("55 mm")))
sketch4.addConstraint(Sketcher.Constraint("DistanceY", 11, 3, 9, 3, Q("55 mm")))
sketch4.addConstraint(Sketcher.Constraint("DistanceY", 12, 3, 10, 3, Q("82 mm")))
sketch4.addConstraint(Sketcher.Constraint("DistanceX", 0, 3, -1, 1, Q("81.4 mm")))
sketch4.addConstraint(Sketcher.Constraint("DistanceY", -1, 1, 0, 3, Q("45.6 mm")))
sketch4.addConstraint(Sketcher.Constraint("DistanceY", -1, 1, 1, 3, Q("55.8 mm")))
sketch4.addConstraint(Sketcher.Constraint("DistanceX", 2, 3, -1, 1, Q("71.2 mm")))
sketch4.addConstraint(Sketcher.Constraint("DistanceY", -1, 1, 8, 3, Q("4.1 mm")))
pocket2 = body.newObject("PartDesign::Pocket", "Pocket001")
pocket2.Profile = sketch4
pocket2.Type = "ThroughAll"
doc.recompute()

fillet = body.newObject("PartDesign::Fillet", "Fillet")
fillet.Base = (pocket2, edges_at(pocket2, [
    (87.5, -50.9, 1),
    (87.5, -59.1, 1),
    (-87.5, -59.1, 1),
    (-87.5, -50.9, 1),
    (-87.5, -4.1, 1),
    (-87.5, 4.1, 1),
    (83.46, 69, 1),
    (87.5, 59, 1),
    (-83.46, 69, 1),
    (-87.5, 59, 1),
    (87.5, 4.1, 1),
    (87.5, -4.1, 1),
    (32, 25, 1),
    (-32, 25, 1),
    (-87.5, -77.9, 1),
    (-42, 69, 1),
    (42, 69, 1),
    (87.5, -77.9, 1),
    (74.994, -77.9, 1),
    (51.9, -132.9, 1),
    (22, -143, 1),
    (-22, -143, 1),
    (-51.9, -132.9, 1),
    (-74.994, -77.9, 1),
]))
fillet.Radius = 1

# Sketch on XY plane
sketch5 = body.newObject("Sketcher::SketchObject", "Sketch004")
sketch5.AttachmentSupport = (doc.getObject("XY_Plane"), [""])
sketch5.MapMode = "FlatFace"
sketch5.AttachmentOffset = App.Placement(Vector(0, 0, 2), App.Rotation())
sketch5.addGeometry(Part.LineSegment(Vector(-59.5, -25, 0), Vector(-75.5, -25, 0)), False)
sketch5.addGeometry(Part.ArcOfCircle(Part.Circle(Vector(-75.5, -27, 0), Vector(0, 0, 1), 2), math.radians(90), math.radians(180)), False)
sketch5.addGeometry(Part.LineSegment(Vector(-77.5, -27, 0), Vector(-77.5, -43, 0)), False)
sketch5.addGeometry(Part.ArcOfCircle(Part.Circle(Vector(-75.5, -43, 0), Vector(0, 0, 1), 2), math.radians(-180), math.radians(-90)), False)
sketch5.addGeometry(Part.LineSegment(Vector(-75.5, -45, 0), Vector(-59.5, -45, 0)), False)
sketch5.addGeometry(Part.ArcOfCircle(Part.Circle(Vector(-59.5, -43, 0), Vector(0, 0, 1), 2), math.radians(-90), math.radians(0)), False)
sketch5.addGeometry(Part.LineSegment(Vector(-57.5, -43, 0), Vector(-57.5, -27, 0)), False)
sketch5.addGeometry(Part.ArcOfCircle(Part.Circle(Vector(-59.5, -27, 0), Vector(0, 0, 1), 2), math.radians(0), math.radians(90)), False)
sketch5.addGeometry(Part.LineSegment(Vector(59.5, -45, 0), Vector(75.5, -45, 0)), False)
sketch5.addGeometry(Part.ArcOfCircle(Part.Circle(Vector(75.5, -43, 0), Vector(0, 0, 1), 2), math.radians(-90), math.radians(0)), False)
sketch5.addGeometry(Part.LineSegment(Vector(77.5, -43, 0), Vector(77.5, -27, 0)), False)
sketch5.addGeometry(Part.ArcOfCircle(Part.Circle(Vector(75.5, -27, 0), Vector(0, 0, 1), 2), math.radians(0), math.radians(90)), False)
sketch5.addGeometry(Part.LineSegment(Vector(75.5, -25, 0), Vector(59.5, -25, 0)), False)
sketch5.addGeometry(Part.ArcOfCircle(Part.Circle(Vector(59.5, -27, 0), Vector(0, 0, 1), 2), math.radians(90), math.radians(180)), False)
sketch5.addGeometry(Part.LineSegment(Vector(57.5, -27, 0), Vector(57.5, -43, 0)), False)
sketch5.addGeometry(Part.ArcOfCircle(Part.Circle(Vector(59.5, -43, 0), Vector(0, 0, 1), 2), math.radians(-180), math.radians(-90)), False)
sketch5.addConstraint(Sketcher.Constraint("Tangent", 0, 2, 1, 1))
sketch5.addConstraint(Sketcher.Constraint("Tangent", 1, 2, 2, 1))
sketch5.addConstraint(Sketcher.Constraint("Tangent", 2, 2, 3, 1))
sketch5.addConstraint(Sketcher.Constraint("Tangent", 3, 2, 4, 1))
sketch5.addConstraint(Sketcher.Constraint("Tangent", 4, 2, 5, 1))
sketch5.addConstraint(Sketcher.Constraint("Tangent", 5, 2, 6, 1))
sketch5.addConstraint(Sketcher.Constraint("Tangent", 6, 2, 7, 1))
sketch5.addConstraint(Sketcher.Constraint("Tangent", 7, 2, 0, 1))
sketch5.addConstraint(Sketcher.Constraint("Tangent", 8, 2, 9, 1))
sketch5.addConstraint(Sketcher.Constraint("Tangent", 9, 2, 10, 1))
sketch5.addConstraint(Sketcher.Constraint("Tangent", 10, 2, 11, 1))
sketch5.addConstraint(Sketcher.Constraint("Tangent", 11, 2, 12, 1))
sketch5.addConstraint(Sketcher.Constraint("Tangent", 12, 2, 13, 1))
sketch5.addConstraint(Sketcher.Constraint("Tangent", 13, 2, 14, 1))
sketch5.addConstraint(Sketcher.Constraint("Tangent", 14, 2, 15, 1))
sketch5.addConstraint(Sketcher.Constraint("Tangent", 15, 2, 8, 1))
sketch5.addConstraint(Sketcher.Constraint("Horizontal", 0))
sketch5.addConstraint(Sketcher.Constraint("Vertical", 2))
sketch5.addConstraint(Sketcher.Constraint("Horizontal", 4))
sketch5.addConstraint(Sketcher.Constraint("Vertical", 6))
sketch5.addConstraint(Sketcher.Constraint("Horizontal", 8))
sketch5.addConstraint(Sketcher.Constraint("Vertical", 10))
sketch5.addConstraint(Sketcher.Constraint("Horizontal", 12))
sketch5.addConstraint(Sketcher.Constraint("Vertical", 14))
sketch5.addConstraint(Sketcher.Constraint("Equal", 1, 3))
sketch5.addConstraint(Sketcher.Constraint("Equal", 3, 5))
sketch5.addConstraint(Sketcher.Constraint("Equal", 5, 7))
sketch5.addConstraint(Sketcher.Constraint("Equal", 7, 9))
sketch5.addConstraint(Sketcher.Constraint("Equal", 9, 11))
sketch5.addConstraint(Sketcher.Constraint("Equal", 11, 13))
sketch5.addConstraint(Sketcher.Constraint("Equal", 13, 15))
sketch5.addConstraint(Sketcher.Constraint("Symmetric", 3, 3, 9, 3, -2))
sketch5.addConstraint(Sketcher.Constraint("Symmetric", 7, 3, 13, 3, -2))
sketch5.addConstraint(Sketcher.Constraint("Equal", 12, 2))
sketch5.addConstraint(Sketcher.Constraint("Radius", 1, Q("2 mm")))
sketch5.addConstraint(Sketcher.Constraint("DistanceX", 0, 2, 0, 1, Q("16 mm")))
sketch5.addConstraint(Sketcher.Constraint("DistanceY", 1, 3, -1, 1, Q("27 mm")))
sketch5.addConstraint(Sketcher.Constraint("DistanceX", 5, 3, 9, 3, Q("135 mm")))
pocket3 = body.newObject("PartDesign::Pocket", "Pocket002")
pocket3.Profile = sketch5
pocket3.Length = 10

# Sketch on XY plane
sketch6 = body.newObject("Sketcher::SketchObject", "Sketch005")
sketch6.AttachmentSupport = (doc.getObject("XY_Plane"), [""])
sketch6.MapMode = "FlatFace"
sketch6.AttachmentOffset = App.Placement(Vector(0, 0, 2), App.Rotation())
sketch6.addGeometry(Part.Circle(Vector(-65, -72.2, 0), Vector(0, 0, 1), 1.5), False)
sketch6.addGeometry(Part.Circle(Vector(65, -72.2, 0), Vector(0, 0, 1), 1.5), False)
sketch6.addConstraint(Sketcher.Constraint("Equal", 0, 1))
sketch6.addConstraint(Sketcher.Constraint("Symmetric", 0, 3, 1, 3, -2))
sketch6.addConstraint(Sketcher.Constraint("Diameter", 0, Q("3 mm")))
sketch6.addConstraint(Sketcher.Constraint("DistanceX", 0, 3, -1, 1, Q("65 mm")))
sketch6.addConstraint(Sketcher.Constraint("DistanceY", 0, 3, -1, 1, Q("72.2 mm")))
pocket4 = body.newObject("PartDesign::Pocket", "Pocket003")
pocket4.Profile = sketch6
pocket4.Length = 10

doc.recompute()
